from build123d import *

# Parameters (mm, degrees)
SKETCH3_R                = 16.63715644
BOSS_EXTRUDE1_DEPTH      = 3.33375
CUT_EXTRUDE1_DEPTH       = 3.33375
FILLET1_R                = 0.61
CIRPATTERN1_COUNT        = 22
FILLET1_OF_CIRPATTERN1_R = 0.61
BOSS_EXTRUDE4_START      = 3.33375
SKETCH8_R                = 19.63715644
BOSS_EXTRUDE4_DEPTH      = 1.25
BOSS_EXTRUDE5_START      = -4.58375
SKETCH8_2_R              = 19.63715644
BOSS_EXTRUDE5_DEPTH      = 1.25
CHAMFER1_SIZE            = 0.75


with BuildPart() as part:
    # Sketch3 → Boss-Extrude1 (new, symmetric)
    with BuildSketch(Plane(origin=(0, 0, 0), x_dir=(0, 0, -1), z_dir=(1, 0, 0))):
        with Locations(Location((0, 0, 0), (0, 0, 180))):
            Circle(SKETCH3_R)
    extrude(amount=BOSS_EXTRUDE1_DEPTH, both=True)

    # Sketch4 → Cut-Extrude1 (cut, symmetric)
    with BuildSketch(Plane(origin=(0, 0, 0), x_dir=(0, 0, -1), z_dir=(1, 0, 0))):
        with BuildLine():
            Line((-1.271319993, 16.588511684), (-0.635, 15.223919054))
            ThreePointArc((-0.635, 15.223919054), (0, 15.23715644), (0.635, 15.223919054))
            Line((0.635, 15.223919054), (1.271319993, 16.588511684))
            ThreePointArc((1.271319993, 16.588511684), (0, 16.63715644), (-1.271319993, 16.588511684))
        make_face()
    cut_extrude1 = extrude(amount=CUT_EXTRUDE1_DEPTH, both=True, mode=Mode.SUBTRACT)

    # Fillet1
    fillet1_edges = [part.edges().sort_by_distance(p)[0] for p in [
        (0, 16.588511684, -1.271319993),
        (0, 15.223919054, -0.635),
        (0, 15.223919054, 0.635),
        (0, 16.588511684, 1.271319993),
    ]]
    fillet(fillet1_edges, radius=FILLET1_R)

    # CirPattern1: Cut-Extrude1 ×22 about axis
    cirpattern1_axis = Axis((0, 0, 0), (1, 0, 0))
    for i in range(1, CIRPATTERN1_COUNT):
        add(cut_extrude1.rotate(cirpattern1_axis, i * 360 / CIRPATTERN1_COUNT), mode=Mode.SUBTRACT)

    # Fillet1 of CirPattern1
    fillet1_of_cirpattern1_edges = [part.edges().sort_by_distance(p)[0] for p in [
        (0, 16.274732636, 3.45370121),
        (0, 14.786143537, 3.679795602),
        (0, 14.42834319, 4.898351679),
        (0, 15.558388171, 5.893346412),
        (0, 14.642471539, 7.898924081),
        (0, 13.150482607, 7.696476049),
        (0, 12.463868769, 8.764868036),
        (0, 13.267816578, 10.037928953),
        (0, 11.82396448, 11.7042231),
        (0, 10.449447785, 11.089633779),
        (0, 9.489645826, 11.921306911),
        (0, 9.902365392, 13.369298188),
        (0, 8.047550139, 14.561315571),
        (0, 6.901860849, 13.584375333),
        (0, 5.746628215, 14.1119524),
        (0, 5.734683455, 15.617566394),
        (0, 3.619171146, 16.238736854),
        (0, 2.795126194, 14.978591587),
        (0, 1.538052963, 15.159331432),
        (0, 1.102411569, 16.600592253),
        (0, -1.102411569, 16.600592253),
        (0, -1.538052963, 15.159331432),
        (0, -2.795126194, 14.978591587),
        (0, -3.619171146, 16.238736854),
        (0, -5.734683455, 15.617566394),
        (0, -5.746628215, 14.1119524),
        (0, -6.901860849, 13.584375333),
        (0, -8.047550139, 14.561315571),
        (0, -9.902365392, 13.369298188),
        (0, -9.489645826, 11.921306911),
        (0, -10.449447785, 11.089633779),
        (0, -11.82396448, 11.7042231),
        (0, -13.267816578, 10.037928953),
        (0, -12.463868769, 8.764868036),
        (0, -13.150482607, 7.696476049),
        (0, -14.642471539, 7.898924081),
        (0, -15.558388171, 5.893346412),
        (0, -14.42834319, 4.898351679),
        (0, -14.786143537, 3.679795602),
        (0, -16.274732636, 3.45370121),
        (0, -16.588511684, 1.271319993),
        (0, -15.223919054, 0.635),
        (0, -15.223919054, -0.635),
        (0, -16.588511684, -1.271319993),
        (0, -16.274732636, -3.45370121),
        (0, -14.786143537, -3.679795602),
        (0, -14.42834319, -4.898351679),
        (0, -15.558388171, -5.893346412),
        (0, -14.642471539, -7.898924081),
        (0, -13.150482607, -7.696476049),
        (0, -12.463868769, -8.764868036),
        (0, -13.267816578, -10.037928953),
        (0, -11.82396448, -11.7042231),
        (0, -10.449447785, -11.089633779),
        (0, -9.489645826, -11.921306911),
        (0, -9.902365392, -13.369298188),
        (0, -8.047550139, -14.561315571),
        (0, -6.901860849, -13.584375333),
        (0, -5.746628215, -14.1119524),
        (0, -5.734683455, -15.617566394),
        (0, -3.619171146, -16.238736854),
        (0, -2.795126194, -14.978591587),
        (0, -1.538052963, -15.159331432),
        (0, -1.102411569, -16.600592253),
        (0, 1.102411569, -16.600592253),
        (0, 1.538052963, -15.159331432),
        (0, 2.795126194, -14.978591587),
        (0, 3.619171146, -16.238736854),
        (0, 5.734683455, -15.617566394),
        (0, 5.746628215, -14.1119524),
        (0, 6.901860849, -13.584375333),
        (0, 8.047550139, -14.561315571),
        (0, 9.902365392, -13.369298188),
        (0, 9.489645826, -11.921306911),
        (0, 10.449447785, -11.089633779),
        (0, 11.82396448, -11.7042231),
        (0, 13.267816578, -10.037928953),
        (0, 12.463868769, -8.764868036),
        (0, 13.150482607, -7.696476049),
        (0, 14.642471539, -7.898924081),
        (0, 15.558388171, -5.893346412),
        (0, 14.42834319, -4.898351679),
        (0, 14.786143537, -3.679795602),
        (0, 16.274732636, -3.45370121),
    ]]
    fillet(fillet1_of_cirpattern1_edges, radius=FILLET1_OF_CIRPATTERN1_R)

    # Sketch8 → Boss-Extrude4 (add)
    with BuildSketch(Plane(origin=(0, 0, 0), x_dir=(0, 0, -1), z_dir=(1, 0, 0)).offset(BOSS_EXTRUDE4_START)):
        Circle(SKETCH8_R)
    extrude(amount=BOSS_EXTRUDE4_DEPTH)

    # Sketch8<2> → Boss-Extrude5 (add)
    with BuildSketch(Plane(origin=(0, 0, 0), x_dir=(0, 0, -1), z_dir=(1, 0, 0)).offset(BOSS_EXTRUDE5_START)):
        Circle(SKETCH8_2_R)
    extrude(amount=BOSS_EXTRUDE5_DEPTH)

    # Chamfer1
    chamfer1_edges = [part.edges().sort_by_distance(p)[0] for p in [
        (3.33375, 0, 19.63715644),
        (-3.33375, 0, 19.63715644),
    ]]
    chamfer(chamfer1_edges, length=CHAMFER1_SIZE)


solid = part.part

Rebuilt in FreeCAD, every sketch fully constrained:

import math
import FreeCAD as App
import Part
import Sketcher
from FreeCAD import Vector
Q = App.Units.Quantity


def edges_at(feature, points):
    """Names of the edges that pass closest to the given points."""
    edges = feature.Shape.Edges
    near = lambda p: min(range(len(edges)), key=lambda i: edges[i].distToShape(Part.Vertex(*p))[0])
    return sorted({f"Edge{near(p) + 1}" for p in points})

doc = App.newDocument("Part")
body = doc.addObject("PartDesign::Body", "Body")

sketch1 = body.newObject("Sketcher::SketchObject", "Sketch")
sketch1.AttachmentSupport = (doc.getObject("YZ_Plane"), [""])
sketch1.MapMode = "FlatFace"
sketch1.addGeometry(Part.Circle(Vector(0, 0, 0), Vector(0, 0, 1), 16.637156), False)
sketch1.addConstraint([
    Sketcher.Constraint("Coincident", 0, 3, -1, 1),
    Sketcher.Constraint("Diameter", 0, 33.274313),
])
pad1 = body.newObject("PartDesign::Pad", "Pad")
pad1.Profile = sketch1
pad1.Length = 6.6675
pad1.Midplane = True

sketch2 = body.newObject("Sketcher::SketchObject", "Sketch001")
sketch2.AttachmentSupport = (doc.getObject("YZ_Plane"), [""])
sketch2.MapMode = "FlatFace"
sketch2.addGeometry([
    Part.LineSegment(Vector(16.588512, 1.27132, 0), Vector(15.223919, 0.635, 0)),
    Part.ArcOfCircle(Part.Circle(Vector(0.000001, 0, 0), Vector(0, 0, 1), 15.237156), math.radians(-2.388461), math.radians(2.388461)),
    Part.LineSegment(Vector(15.223919, -0.635, 0), Vector(16.588512, -1.27132, 0)),
    Part.ArcOfCircle(Part.Circle(Vector(0, 0, 0), Vector(0, 0, 1), 16.637156), math.radians(-4.3825), math.radians(4.3825)),
], False)
sketch2.addConstraint([
    Sketcher.Constraint("Coincident", 0, 2, 1, 2),
    Sketcher.Constraint("Coincident", 1, 1, 2, 1),
    Sketcher.Constraint("Coincident", 2, 2, 3, 1),
    Sketcher.Constraint("Coincident", 3, 2, 0, 1),
    Sketcher.Constraint("Coincident", 1, 3, -1, 1),
    Sketcher.Constraint("Coincident", 3, 3, -1, 1),
    Sketcher.Constraint("Vertical", 0, 2, 1, 1),
    Sketcher.Constraint("Vertical", 2, 2, 3, 2),
    Sketcher.Constraint("Angle", 0, Q("-155 deg")),
    Sketcher.Constraint("DistanceY", 1, 1, 0, 2, 1.27),
    Sketcher.Constraint("Radius", 1, 15.237156),
    Sketcher.Constraint("Radius", 3, 16.637156),
])
pocket1 = body.newObject("PartDesign::Pocket", "Pocket")
pocket1.Profile = sketch2
pocket1.Length = 6.6675
pocket1.Midplane = True
doc.recompute()

fillet = body.newObject("PartDesign::Fillet", "Fillet")
fillet.Base = (pocket1, edges_at(pocket1, [
    (0, 16.589, -1.271),
    (0, 15.224, -0.635),
    (0, 15.224, 0.635),
    (0, 16.589, 1.271),
]))
fillet.Radius = 0.61
doc.recompute()

polarpattern = body.newObject("PartDesign::PolarPattern", "PolarPattern")
polarpattern.Originals = [pocket1]
polarpattern.Axis = (doc.getObject("X_Axis"), [""])
polarpattern.Angle = 360
polarpattern.Occurrences = 22
body.Tip = polarpattern
doc.recompute()

fillet2 = body.newObject("PartDesign::Fillet", "Fillet001")
fillet2.Base = (polarpattern, edges_at(polarpattern, [
    (0, 16.275, 3.454),
    (0, 14.786, 3.68),
    (0, 14.428, 4.898),
    (0, 15.558, 5.893),
    (0, 14.642, 7.899),
    (0, 13.15, 7.696),
    (0, 12.464, 8.765),
    (0, 13.268, 10.038),
    (0, 11.824, 11.704),
    (0, 10.449, 11.09),
    (0, 9.49, 11.921),
    (0, 9.902, 13.369),
    (0, 8.048, 14.561),
    (0, 6.902, 13.584),
    (0, 5.747, 14.112),
    (0, 5.735, 15.618),
    (0, 3.619, 16.239),
    (0, 2.795, 14.979),
    (0, 1.538, 15.159),
    (0, 1.102, 16.601),
    (0, -1.102, 16.601),
    (0, -1.538, 15.159),
    (0, -2.795, 14.979),
    (0, -3.619, 16.239),
    (0, -5.735, 15.618),
    (0, -5.747, 14.112),
    (0, -6.902, 13.584),
    (0, -8.048, 14.561),
    (0, -9.902, 13.369),
    (0, -9.49, 11.921),
    (0, -10.449, 11.09),
    (0, -11.824, 11.704),
    (0, -13.268, 10.038),
    (0, -12.464, 8.765),
    (0, -13.15, 7.696),
    (0, -14.642, 7.899),
    (0, -15.558, 5.893),
    (0, -14.428, 4.898),
    (0, -14.786, 3.68),
    (0, -16.275, 3.454),
    (0, -16.589, 1.271),
    (0, -15.224, 0.635),
    (0, -15.224, -0.635),
    (0, -16.589, -1.271),
    (0, -16.275, -3.454),
    (0, -14.786, -3.68),
    (0, -14.428, -4.898),
    (0, -15.558, -5.893),
    (0, -14.642, -7.899),
    (0, -13.15, -7.696),
    (0, -12.464, -8.765),
    (0, -13.268, -10.038),
    (0, -11.824, -11.704),
    (0, -10.449, -11.09),
    (0, -9.49, -11.921),
    (0, -9.902, -13.369),
    (0, -8.048, -14.561),
    (0, -6.902, -13.584),
    (0, -5.747, -14.112),
    (0, -5.735, -15.618),
    (0, -3.619, -16.239),
    (0, -2.795, -14.979),
    (0, -1.538, -15.159),
    (0, -1.102, -16.601),
    (0, 1.102, -16.601),
    (0, 1.538, -15.159),
    (0, 2.795, -14.979),
    (0, 3.619, -16.239),
    (0, 5.735, -15.618),
    (0, 5.747, -14.112),
    (0, 6.902, -13.584),
    (0, 8.048, -14.561),
    (0, 9.902, -13.369),
    (0, 9.49, -11.921),
    (0, 10.449, -11.09),
    (0, 11.824, -11.704),
    (0, 13.268, -10.038),
    (0, 12.464, -8.765),
    (0, 13.15, -7.696),
    (0, 14.642, -7.899),
    (0, 15.558, -5.893),
    (0, 14.428, -4.898),
    (0, 14.786, -3.68),
    (0, 16.275, -3.454),
]))
fillet2.Radius = 0.61

sketch3 = body.newObject("Sketcher::SketchObject", "Sketch002")
sketch3.AttachmentSupport = (doc.getObject("YZ_Plane"), [""])
sketch3.MapMode = "FlatFace"
sketch3.AttachmentOffset = App.Placement(Vector(0, 0, 3.33375), App.Rotation())
sketch3.addGeometry(Part.Circle(Vector(0, 0, 0), Vector(0, 0, 1), 19.637156), False)
sketch3.addConstraint([
    Sketcher.Constraint("Coincident", 0, 3, -1, 1),
    Sketcher.Constraint("Diameter", 0, 39.274313),
])
pad2 = body.newObject("PartDesign::Pad", "Pad001")
pad2.Profile = sketch3
pad2.Length = 1.25

sketch4 = body.newObject("Sketcher::SketchObject", "Sketch003")
sketch4.AttachmentSupport = (doc.getObject("YZ_Plane"), [""])
sketch4.MapMode = "FlatFace"
sketch4.AttachmentOffset = App.Placement(Vector(0, 0, -4.58375), App.Rotation())
sketch4.addGeometry(Part.Circle(Vector(0, 0, 0), Vector(0, 0, 1), 19.637156), False)
sketch4.addConstraint([
    Sketcher.Constraint("Coincident", 0, 3, -1, 1),
    Sketcher.Constraint("Diameter", 0, 39.274313),
])
pad3 = body.newObject("PartDesign::Pad", "Pad002")
pad3.Profile = sketch4
pad3.Length = 1.25
doc.recompute()

chamfer = body.newObject("PartDesign::Chamfer", "Chamfer")
chamfer.Base = (pad3, edges_at(pad3, [(3.334, 0, 19.637), (-3.334, 0, 19.637)]))
chamfer.Size = 0.75

doc.recompute()
